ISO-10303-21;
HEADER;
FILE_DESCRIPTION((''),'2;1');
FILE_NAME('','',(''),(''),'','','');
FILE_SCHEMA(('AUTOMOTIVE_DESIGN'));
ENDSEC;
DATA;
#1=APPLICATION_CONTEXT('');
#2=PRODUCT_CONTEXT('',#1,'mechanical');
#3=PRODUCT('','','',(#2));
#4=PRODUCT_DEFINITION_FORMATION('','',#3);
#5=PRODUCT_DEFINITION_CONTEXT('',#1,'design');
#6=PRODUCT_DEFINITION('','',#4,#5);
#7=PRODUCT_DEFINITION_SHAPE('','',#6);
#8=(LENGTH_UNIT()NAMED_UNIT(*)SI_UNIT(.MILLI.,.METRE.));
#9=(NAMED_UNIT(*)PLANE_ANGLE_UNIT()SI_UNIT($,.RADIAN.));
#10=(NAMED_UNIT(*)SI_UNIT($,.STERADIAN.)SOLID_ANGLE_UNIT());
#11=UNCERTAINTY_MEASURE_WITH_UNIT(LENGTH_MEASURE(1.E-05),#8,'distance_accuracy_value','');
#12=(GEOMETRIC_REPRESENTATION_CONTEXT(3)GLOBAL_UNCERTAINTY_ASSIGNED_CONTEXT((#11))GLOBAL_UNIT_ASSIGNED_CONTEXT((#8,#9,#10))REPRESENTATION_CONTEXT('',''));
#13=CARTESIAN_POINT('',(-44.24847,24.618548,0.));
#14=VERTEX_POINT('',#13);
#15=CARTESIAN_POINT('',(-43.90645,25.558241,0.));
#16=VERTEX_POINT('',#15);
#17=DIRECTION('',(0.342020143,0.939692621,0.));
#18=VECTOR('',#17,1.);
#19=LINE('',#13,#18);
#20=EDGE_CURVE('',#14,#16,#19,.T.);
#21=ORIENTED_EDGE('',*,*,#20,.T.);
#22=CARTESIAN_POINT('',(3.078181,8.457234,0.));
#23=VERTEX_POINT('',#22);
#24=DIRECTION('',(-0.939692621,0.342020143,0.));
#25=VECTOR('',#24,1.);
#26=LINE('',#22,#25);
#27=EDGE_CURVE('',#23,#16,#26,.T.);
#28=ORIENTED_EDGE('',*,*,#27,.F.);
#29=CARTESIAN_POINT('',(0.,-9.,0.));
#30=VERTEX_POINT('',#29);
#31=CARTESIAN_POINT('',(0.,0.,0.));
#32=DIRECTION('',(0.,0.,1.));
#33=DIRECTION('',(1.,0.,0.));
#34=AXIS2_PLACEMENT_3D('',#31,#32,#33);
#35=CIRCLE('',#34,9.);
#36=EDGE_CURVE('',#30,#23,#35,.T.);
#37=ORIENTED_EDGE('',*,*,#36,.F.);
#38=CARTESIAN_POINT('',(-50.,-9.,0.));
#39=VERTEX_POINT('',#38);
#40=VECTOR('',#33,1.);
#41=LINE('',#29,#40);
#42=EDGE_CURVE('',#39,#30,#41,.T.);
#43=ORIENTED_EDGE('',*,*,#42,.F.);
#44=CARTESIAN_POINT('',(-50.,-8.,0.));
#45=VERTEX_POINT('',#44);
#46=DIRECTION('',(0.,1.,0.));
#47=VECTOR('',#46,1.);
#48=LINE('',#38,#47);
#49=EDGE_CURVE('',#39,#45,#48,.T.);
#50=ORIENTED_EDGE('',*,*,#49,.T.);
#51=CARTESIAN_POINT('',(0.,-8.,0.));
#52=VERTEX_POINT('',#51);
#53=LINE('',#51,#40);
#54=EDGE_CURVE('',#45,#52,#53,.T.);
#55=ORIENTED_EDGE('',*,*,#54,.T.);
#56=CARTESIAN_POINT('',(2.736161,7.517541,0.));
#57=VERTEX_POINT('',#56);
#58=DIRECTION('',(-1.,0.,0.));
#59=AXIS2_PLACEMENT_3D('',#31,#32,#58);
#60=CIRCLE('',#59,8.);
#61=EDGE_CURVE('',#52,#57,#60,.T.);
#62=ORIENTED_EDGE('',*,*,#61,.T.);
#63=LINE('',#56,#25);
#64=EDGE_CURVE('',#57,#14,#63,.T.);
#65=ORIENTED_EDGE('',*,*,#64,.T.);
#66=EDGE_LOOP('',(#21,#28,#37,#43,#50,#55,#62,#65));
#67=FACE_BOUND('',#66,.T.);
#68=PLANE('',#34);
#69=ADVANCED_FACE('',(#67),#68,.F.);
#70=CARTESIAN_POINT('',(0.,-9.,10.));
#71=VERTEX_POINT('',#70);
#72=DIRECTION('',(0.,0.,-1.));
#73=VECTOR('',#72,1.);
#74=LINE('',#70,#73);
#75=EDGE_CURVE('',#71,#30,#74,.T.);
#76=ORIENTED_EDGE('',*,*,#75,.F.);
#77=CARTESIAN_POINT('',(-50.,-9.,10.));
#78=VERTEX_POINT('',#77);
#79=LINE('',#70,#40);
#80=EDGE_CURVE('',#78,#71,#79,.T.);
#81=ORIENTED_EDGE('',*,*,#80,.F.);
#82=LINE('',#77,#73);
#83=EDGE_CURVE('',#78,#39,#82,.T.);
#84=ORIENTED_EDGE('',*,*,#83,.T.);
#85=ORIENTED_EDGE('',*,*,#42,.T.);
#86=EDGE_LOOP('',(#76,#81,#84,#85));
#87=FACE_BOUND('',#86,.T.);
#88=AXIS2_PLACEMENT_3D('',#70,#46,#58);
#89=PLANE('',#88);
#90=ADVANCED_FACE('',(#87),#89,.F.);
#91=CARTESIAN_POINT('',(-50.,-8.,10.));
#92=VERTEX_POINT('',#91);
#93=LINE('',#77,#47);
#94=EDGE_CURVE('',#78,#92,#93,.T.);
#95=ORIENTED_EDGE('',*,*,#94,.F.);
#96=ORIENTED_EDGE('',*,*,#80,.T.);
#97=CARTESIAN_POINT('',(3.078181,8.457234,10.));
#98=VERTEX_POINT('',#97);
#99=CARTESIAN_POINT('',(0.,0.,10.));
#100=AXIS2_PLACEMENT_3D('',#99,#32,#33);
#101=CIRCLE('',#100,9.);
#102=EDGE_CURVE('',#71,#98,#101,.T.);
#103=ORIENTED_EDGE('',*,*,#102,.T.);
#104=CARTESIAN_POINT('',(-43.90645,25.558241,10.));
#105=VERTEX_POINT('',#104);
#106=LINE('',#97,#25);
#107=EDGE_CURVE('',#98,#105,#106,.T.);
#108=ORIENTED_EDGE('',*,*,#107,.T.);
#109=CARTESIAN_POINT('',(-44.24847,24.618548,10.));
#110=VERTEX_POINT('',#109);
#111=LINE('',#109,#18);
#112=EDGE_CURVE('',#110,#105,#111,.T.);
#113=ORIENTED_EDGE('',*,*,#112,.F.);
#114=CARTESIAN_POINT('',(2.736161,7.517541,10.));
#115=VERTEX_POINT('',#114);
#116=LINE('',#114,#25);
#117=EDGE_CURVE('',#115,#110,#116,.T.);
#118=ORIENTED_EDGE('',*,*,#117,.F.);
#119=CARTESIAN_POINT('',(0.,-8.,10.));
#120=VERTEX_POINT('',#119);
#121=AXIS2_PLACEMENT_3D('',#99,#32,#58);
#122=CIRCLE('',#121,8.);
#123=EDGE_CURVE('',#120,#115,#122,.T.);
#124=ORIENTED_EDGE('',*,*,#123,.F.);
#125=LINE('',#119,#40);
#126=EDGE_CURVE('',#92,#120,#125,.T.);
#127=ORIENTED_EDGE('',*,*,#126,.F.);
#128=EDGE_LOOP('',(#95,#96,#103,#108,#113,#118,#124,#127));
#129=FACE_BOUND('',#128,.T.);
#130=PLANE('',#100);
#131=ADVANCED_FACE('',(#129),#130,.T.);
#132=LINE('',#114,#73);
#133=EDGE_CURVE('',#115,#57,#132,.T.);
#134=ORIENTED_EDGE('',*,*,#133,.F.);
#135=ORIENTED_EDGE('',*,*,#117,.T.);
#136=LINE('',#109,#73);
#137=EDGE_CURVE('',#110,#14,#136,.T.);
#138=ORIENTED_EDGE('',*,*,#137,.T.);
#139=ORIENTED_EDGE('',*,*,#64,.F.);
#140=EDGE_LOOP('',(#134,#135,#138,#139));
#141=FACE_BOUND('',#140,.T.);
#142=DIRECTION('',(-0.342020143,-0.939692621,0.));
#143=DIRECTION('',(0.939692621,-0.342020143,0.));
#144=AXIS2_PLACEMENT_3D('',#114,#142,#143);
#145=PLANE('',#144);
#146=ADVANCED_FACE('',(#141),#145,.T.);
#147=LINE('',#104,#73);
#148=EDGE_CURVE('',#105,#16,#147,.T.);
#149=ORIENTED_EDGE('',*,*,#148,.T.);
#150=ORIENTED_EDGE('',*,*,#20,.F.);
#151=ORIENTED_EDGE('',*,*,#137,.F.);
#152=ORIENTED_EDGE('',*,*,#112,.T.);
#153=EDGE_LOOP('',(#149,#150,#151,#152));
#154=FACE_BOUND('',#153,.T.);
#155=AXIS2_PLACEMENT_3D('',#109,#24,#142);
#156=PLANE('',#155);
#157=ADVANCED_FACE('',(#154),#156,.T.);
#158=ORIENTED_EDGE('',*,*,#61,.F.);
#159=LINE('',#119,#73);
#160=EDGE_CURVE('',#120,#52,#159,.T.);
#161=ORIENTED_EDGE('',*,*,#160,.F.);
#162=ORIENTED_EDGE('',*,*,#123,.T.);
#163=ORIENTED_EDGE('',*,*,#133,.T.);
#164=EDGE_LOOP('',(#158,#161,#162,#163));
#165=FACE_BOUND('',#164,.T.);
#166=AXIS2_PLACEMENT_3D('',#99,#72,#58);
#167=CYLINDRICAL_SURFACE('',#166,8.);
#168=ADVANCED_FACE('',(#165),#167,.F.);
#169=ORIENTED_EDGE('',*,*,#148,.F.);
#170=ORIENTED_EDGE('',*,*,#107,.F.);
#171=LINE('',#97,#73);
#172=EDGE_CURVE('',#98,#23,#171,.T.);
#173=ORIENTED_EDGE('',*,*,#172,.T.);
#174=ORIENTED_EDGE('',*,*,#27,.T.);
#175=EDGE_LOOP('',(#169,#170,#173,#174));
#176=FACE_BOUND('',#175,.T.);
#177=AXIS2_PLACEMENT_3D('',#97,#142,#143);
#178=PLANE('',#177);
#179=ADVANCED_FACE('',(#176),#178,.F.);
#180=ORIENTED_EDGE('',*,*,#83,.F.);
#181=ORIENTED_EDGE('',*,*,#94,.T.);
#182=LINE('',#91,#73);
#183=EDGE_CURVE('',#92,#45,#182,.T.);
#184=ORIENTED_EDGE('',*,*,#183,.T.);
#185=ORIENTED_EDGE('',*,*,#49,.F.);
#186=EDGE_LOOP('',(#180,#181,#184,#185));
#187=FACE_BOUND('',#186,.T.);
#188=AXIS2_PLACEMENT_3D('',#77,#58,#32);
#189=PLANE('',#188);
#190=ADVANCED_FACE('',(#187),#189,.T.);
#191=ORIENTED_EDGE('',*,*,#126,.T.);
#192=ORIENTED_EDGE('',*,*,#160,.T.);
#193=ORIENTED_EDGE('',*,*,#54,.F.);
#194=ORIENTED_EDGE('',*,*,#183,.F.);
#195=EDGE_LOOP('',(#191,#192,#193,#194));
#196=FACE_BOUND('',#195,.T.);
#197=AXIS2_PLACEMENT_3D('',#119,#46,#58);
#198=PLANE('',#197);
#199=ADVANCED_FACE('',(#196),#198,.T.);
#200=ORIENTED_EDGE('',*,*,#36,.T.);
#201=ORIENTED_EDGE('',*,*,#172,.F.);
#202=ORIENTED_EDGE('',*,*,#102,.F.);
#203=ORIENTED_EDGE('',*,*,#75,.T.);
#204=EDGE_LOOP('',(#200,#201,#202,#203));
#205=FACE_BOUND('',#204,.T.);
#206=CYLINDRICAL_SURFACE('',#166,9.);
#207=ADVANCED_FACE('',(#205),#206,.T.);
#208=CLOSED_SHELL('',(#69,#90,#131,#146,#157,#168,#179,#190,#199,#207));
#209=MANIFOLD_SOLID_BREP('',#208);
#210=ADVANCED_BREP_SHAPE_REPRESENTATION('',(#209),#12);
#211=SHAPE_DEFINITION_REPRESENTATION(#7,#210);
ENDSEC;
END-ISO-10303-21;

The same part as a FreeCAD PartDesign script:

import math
import FreeCAD as App
import Part
import Sketcher

V = App.Vector
Q = App.Units.Quantity

doc = App.newDocument("Part")
body = doc.addObject("PartDesign::Body", "Body")

# Sketch on XY plane
sketch1 = body.newObject("Sketcher::SketchObject", "Sketch")
sketch1.AttachmentSupport = (doc.getObject("XY_Plane"), [""])
sketch1.MapMode = "FlatFace"
sketch1.addGeometry(Part.LineSegment(V(-44.24847, 24.618548, 0), V(2.736161, 7.517541, 0)), False)
sketch1.addGeometry(Part.ArcOfCircle(Part.Circle(V(0, 0, 0), V(0, 0, 1), 8), math.radians(-90), math.radians(70)), False)
sketch1.addGeometry(Part.LineSegment(V(0, -8, 0), V(-50, -8, 0)), False)
sketch1.addGeometry(Part.LineSegment(V(-50, -8, 0), V(-50, -9, 0)), False)
sketch1.addGeometry(Part.LineSegment(V(-50, -9, 0), V(0, -9, 0)), False)
sketch1.addGeometry(Part.ArcOfCircle(Part.Circle(V(0, 0, 0), V(0, 0, 1), 9), math.radians(-90), math.radians(70)), False)
sketch1.addGeometry(Part.LineSegment(V(3.078181, 8.457234, 0), V(-43.90645, 25.558241, 0)), False)
sketch1.addGeometry(Part.LineSegment(V(-43.90645, 25.558241, 0), V(-44.24847, 24.618548, 0)), False)
sketch1.addConstraint(Sketcher.Constraint("Tangent", 0, 2, 1, 2))
sketch1.addConstraint(Sketcher.Constraint("Tangent", 1, 1, 2, 1))
sketch1.addConstraint(Sketcher.Constraint("Coincident", 2, 2, 3, 1))
sketch1.addConstraint(Sketcher.Constraint("Coincident", 3, 2, 4, 1))
sketch1.addConstraint(Sketcher.Constraint("Tangent", 4, 2, 5, 1))
sketch1.addConstraint(Sketcher.Constraint("Tangent", 5, 2, 6, 1))
sketch1.addConstraint(Sketcher.Constraint("Coincident", 6, 2, 7, 1))
sketch1.addConstraint(Sketcher.Constraint("Coincident", 7, 2, 0, 1))
sketch1.addConstraint(Sketcher.Constraint("Horizontal", 2))
sketch1.addConstraint(Sketcher.Constraint("Vertical", 3))
sketch1.addConstraint(Sketcher.Constraint("Horizontal", 4))
sketch1.addConstraint(Sketcher.Constraint("Coincident", 1, 3, -1, 1))
sketch1.addConstraint(Sketcher.Constraint("Coincident", 5, 3, -1, 1))
sketch1.addConstraint(Sketcher.Constraint("Parallel", 0, 6))
sketch1.addConstraint(Sketcher.Constraint("Perpendicular", 6, 7))
sketch1.addConstraint(Sketcher.Constraint("Radius", 1, 8.0))
sketch1.addConstraint(Sketcher.Constraint("Radius", 5, 9.0))
sketch1.addConstraint(Sketcher.Constraint("DistanceX", 2, 2, 2, 1, 50.0))
sketch1.addConstraint(Sketcher.Constraint("Angle", 0, Q("-20 deg")))
sketch1.addConstraint(Sketcher.Constraint("Distance", 0, 50.0))
pad1 = body.newObject("PartDesign::Pad", "Pad")
pad1.Profile = sketch1
pad1.Length = 10

doc.recompute()
